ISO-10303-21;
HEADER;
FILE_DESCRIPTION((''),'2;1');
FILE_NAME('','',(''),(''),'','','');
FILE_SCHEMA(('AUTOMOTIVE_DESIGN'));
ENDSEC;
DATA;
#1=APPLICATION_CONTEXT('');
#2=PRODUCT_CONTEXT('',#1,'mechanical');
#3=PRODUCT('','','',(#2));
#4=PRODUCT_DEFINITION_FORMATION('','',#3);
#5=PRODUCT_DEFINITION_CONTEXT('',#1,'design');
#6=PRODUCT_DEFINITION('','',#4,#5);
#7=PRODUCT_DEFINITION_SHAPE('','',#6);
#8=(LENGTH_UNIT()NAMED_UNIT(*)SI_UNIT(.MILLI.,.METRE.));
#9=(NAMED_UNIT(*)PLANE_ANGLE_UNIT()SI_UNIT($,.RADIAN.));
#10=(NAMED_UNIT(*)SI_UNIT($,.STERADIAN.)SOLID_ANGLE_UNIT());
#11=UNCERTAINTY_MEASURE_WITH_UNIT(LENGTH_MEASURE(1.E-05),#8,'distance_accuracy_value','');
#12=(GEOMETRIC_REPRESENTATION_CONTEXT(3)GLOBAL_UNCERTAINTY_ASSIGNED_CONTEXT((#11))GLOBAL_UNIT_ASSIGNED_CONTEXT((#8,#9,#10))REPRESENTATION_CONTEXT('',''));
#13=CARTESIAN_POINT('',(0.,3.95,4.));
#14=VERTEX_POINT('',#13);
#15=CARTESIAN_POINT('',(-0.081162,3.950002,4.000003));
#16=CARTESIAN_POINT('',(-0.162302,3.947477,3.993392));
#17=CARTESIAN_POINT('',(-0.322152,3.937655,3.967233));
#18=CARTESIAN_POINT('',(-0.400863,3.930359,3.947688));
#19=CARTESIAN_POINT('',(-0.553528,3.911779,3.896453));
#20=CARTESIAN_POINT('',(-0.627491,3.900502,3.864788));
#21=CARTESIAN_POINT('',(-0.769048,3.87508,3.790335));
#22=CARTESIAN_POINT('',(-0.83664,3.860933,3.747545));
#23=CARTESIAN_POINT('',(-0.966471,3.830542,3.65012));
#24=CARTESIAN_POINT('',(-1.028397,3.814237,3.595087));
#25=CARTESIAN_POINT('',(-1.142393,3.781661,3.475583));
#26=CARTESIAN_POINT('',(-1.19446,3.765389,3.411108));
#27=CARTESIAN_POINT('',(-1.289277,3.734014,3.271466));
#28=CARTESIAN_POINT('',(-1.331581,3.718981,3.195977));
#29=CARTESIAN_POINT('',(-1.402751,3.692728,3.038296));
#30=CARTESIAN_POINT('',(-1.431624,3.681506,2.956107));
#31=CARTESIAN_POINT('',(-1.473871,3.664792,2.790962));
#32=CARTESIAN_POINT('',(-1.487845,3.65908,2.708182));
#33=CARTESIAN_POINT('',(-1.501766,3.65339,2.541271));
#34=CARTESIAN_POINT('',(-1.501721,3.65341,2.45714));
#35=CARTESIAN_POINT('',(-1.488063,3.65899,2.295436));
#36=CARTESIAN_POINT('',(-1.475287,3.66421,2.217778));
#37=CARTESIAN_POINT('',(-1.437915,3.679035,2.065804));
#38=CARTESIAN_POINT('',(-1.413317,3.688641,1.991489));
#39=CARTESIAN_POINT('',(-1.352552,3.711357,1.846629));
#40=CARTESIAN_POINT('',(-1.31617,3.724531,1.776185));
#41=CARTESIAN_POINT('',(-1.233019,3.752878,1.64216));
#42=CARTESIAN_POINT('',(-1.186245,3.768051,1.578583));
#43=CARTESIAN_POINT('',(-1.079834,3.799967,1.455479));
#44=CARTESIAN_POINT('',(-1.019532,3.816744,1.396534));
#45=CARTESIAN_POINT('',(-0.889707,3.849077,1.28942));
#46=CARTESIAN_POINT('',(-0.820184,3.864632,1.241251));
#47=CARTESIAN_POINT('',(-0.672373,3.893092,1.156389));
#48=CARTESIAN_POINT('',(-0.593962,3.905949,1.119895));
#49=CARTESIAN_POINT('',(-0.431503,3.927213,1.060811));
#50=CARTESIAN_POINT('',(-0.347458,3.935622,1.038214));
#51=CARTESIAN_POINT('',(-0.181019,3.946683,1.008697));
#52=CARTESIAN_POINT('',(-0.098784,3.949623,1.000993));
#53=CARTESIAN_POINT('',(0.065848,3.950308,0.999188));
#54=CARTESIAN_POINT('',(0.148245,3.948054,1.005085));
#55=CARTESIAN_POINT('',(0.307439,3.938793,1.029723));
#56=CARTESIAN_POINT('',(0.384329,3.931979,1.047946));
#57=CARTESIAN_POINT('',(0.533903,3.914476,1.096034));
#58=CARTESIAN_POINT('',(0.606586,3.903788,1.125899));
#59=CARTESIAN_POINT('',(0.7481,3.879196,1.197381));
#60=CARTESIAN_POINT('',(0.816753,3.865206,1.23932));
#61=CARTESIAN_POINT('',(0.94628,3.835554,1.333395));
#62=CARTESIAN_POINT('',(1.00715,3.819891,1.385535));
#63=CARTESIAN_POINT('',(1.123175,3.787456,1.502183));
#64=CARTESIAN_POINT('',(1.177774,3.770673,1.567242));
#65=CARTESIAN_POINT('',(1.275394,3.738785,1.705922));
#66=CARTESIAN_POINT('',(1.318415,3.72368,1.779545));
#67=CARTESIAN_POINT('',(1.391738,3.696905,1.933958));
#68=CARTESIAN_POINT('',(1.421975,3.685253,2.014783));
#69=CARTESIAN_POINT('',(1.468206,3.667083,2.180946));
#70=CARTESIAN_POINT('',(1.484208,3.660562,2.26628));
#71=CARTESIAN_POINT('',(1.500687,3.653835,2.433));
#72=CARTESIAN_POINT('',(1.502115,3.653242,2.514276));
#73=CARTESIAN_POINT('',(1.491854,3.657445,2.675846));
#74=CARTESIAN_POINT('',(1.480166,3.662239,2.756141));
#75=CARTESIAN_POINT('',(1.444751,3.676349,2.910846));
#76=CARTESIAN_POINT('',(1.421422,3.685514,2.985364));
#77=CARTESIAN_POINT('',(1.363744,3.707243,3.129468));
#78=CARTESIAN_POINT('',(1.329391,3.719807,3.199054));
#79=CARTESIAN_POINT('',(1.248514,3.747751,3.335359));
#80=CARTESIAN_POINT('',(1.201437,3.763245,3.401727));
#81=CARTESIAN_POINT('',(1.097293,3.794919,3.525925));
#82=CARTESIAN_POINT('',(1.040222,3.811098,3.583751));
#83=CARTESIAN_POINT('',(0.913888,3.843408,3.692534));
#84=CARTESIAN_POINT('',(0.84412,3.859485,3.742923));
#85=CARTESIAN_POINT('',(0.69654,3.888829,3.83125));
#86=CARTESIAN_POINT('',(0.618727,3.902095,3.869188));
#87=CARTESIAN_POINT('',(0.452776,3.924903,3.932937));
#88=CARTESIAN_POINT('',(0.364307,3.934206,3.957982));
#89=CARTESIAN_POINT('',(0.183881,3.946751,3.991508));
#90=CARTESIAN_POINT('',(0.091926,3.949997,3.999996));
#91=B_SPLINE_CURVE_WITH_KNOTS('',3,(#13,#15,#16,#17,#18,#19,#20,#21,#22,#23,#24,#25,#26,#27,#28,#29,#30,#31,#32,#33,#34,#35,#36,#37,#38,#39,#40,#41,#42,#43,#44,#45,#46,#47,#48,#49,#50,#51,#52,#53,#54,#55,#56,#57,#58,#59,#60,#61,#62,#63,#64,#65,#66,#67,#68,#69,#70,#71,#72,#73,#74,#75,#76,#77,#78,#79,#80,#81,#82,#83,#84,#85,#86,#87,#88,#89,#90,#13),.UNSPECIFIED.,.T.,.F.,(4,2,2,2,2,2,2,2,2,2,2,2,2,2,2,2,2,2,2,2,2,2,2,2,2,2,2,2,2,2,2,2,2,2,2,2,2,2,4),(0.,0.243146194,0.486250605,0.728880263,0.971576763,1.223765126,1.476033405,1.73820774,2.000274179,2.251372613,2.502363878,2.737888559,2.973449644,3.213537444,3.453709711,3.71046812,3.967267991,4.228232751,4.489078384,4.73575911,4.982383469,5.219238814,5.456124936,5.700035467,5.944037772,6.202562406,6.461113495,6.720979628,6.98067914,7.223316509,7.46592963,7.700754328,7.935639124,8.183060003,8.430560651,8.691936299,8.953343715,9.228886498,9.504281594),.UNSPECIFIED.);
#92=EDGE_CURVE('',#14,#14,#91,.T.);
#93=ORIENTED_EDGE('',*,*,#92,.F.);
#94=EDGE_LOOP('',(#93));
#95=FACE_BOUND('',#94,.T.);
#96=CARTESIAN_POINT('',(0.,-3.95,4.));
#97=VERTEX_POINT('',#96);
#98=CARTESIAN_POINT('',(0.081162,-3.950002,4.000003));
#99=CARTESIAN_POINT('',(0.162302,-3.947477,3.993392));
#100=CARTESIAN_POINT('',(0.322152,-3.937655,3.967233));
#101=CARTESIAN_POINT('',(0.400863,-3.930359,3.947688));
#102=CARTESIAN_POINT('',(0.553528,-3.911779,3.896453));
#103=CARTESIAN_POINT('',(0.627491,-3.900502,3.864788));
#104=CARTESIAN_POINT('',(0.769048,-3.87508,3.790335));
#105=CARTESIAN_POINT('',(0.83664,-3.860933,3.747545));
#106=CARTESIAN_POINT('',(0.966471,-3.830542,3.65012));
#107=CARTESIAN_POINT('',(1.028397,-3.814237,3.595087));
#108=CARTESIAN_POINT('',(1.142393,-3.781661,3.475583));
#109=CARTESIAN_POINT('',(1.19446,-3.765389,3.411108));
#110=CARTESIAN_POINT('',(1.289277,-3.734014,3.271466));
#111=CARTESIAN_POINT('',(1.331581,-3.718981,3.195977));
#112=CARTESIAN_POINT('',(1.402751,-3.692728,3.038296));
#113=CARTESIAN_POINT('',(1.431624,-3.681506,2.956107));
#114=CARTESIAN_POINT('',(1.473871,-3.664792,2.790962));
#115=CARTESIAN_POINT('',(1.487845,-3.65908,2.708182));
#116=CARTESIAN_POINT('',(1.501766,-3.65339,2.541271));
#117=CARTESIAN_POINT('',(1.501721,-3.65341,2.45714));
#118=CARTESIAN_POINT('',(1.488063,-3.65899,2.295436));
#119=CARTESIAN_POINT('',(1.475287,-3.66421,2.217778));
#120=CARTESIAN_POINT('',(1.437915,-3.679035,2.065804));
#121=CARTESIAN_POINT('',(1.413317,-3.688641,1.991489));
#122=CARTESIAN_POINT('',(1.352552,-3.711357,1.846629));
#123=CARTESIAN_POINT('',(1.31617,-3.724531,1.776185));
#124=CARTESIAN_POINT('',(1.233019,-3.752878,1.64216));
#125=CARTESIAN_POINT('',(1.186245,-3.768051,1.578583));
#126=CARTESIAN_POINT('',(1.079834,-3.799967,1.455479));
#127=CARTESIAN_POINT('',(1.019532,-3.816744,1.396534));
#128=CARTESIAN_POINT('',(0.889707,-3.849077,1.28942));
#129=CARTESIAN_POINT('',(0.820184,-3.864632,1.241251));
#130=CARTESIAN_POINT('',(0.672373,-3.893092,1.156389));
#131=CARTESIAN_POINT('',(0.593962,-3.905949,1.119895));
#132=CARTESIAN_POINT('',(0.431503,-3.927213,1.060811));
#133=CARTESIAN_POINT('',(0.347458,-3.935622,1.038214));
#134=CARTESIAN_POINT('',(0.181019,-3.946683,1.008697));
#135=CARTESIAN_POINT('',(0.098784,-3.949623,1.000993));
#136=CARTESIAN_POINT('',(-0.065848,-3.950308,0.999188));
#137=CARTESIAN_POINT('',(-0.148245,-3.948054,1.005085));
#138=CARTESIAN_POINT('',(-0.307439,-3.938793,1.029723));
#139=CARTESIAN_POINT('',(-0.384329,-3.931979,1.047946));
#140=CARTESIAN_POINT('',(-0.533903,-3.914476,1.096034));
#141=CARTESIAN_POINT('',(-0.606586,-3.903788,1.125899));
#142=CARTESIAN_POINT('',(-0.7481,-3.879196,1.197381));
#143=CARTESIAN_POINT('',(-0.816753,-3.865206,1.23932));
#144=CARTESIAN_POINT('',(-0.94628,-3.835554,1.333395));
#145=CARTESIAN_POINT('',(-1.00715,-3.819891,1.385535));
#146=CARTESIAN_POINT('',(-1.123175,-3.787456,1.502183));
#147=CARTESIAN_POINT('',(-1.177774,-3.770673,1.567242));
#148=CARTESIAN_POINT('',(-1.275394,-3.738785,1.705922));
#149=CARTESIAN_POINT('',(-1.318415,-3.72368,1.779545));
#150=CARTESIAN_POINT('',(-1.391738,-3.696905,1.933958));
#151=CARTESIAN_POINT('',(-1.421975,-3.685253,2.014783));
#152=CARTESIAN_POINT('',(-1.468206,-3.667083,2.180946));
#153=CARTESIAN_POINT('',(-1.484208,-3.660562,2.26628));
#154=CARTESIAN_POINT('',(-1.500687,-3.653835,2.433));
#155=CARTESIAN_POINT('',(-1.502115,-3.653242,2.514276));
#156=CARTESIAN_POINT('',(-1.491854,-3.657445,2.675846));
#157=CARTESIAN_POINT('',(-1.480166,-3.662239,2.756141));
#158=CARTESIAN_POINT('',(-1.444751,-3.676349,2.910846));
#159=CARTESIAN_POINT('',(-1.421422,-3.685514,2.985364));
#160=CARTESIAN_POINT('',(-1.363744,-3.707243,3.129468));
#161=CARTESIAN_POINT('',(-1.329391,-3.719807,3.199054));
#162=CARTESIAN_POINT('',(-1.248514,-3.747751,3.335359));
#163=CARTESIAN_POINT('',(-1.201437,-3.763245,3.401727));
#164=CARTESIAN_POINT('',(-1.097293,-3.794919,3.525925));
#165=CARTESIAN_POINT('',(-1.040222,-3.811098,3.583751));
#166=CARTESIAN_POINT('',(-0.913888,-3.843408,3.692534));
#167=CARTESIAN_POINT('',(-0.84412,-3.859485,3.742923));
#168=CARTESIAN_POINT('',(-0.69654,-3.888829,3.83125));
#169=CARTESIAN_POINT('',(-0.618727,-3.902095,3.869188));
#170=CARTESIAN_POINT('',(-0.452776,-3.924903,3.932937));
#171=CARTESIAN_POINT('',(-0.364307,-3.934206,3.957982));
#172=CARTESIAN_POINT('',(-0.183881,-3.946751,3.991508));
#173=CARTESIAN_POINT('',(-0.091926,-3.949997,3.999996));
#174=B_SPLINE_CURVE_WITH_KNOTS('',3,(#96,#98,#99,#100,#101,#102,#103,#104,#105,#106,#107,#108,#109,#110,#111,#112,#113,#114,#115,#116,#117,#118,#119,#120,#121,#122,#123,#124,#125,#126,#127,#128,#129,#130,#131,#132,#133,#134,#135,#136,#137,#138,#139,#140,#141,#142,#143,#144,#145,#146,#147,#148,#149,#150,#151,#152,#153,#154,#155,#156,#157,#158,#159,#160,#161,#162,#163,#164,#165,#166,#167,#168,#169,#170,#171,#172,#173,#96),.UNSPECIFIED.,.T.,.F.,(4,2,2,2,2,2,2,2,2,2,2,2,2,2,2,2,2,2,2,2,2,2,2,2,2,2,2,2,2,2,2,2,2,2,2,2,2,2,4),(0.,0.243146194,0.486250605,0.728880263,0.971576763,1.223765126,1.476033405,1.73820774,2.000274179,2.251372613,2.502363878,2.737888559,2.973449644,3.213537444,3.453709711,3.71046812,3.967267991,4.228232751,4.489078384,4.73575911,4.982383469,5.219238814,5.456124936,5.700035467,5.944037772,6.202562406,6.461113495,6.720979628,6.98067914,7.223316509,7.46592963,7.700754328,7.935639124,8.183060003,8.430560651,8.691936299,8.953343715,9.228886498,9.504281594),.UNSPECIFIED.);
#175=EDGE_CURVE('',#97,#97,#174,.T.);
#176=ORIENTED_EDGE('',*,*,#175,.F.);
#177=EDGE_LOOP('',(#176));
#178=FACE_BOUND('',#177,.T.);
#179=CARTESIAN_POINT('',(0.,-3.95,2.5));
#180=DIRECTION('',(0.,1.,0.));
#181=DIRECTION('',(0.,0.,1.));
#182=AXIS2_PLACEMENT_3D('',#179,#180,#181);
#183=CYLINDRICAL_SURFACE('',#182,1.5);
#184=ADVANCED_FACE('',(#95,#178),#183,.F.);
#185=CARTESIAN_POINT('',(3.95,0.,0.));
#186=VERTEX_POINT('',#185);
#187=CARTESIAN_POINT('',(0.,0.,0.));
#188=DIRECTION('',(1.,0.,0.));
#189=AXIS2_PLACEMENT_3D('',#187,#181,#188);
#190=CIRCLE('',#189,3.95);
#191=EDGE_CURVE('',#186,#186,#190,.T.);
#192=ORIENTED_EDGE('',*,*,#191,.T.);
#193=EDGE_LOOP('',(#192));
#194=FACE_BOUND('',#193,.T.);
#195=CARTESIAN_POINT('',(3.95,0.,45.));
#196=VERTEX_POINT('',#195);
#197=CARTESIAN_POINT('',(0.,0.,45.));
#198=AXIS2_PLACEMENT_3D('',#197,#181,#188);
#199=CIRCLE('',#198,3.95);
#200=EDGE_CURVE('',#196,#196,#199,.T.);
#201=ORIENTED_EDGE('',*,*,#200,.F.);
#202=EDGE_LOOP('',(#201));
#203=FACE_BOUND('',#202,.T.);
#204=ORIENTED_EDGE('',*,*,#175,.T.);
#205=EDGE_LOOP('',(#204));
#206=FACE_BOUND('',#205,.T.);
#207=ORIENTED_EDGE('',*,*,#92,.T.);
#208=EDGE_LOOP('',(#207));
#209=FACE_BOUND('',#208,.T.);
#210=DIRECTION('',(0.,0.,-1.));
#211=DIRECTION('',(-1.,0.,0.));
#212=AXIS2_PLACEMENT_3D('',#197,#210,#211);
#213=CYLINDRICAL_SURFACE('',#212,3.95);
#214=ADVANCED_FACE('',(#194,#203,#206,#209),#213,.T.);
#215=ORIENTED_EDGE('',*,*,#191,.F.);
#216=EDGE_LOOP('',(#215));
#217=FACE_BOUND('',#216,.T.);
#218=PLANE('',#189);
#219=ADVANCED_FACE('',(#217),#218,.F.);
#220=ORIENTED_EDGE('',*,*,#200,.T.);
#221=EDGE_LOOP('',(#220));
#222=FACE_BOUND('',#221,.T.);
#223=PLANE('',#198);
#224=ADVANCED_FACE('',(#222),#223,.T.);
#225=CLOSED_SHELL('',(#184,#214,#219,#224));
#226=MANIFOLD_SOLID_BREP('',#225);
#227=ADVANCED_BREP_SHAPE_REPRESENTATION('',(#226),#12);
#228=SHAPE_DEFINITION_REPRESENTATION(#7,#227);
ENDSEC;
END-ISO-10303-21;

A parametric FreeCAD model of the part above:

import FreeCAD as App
import Part
import Sketcher
from FreeCAD import Vector

doc = App.newDocument("Part")
body = doc.addObject("PartDesign::Body", "Body")

sketch1 = body.newObject("Sketcher::SketchObject", "Sketch")
sketch1.AttachmentSupport = (doc.getObject("XY_Plane"), [""])
sketch1.MapMode = "FlatFace"
sketch1.addGeometry(Part.Circle(Vector(0, 0, 0), Vector(0, 0, 1), 3.95), False)
sketch1.addConstraint([
    Sketcher.Constraint("Coincident", 0, 3, -1, 1),
    Sketcher.Constraint("Diameter", 0, 7.9),
])
pad1 = body.newObject("PartDesign::Pad", "Pad")
pad1.Profile = sketch1
pad1.Length = 45

sketch2 = body.newObject("Sketcher::SketchObject", "Sketch001")
sketch2.AttachmentSupport = (doc.getObject("XZ_Plane"), [""])
sketch2.MapMode = "FlatFace"
sketch2.addGeometry(Part.Circle(Vector(0, 2.5, 0), Vector(0, 0, 1), 1.5), False)
sketch2.addConstraint([
    Sketcher.Constraint("PointOnObject", 0, 3, -2),
    Sketcher.Constraint("Diameter", 0, 3.0),
    Sketcher.Constraint("DistanceY", -1, 1, 0, 3, 2.5),
])
pocket1 = body.newObject("PartDesign::Pocket", "Pocket")
pocket1.Profile = sketch2
pocket1.Type = "ThroughAll"
pocket1.Midplane = True

doc.recompute()
